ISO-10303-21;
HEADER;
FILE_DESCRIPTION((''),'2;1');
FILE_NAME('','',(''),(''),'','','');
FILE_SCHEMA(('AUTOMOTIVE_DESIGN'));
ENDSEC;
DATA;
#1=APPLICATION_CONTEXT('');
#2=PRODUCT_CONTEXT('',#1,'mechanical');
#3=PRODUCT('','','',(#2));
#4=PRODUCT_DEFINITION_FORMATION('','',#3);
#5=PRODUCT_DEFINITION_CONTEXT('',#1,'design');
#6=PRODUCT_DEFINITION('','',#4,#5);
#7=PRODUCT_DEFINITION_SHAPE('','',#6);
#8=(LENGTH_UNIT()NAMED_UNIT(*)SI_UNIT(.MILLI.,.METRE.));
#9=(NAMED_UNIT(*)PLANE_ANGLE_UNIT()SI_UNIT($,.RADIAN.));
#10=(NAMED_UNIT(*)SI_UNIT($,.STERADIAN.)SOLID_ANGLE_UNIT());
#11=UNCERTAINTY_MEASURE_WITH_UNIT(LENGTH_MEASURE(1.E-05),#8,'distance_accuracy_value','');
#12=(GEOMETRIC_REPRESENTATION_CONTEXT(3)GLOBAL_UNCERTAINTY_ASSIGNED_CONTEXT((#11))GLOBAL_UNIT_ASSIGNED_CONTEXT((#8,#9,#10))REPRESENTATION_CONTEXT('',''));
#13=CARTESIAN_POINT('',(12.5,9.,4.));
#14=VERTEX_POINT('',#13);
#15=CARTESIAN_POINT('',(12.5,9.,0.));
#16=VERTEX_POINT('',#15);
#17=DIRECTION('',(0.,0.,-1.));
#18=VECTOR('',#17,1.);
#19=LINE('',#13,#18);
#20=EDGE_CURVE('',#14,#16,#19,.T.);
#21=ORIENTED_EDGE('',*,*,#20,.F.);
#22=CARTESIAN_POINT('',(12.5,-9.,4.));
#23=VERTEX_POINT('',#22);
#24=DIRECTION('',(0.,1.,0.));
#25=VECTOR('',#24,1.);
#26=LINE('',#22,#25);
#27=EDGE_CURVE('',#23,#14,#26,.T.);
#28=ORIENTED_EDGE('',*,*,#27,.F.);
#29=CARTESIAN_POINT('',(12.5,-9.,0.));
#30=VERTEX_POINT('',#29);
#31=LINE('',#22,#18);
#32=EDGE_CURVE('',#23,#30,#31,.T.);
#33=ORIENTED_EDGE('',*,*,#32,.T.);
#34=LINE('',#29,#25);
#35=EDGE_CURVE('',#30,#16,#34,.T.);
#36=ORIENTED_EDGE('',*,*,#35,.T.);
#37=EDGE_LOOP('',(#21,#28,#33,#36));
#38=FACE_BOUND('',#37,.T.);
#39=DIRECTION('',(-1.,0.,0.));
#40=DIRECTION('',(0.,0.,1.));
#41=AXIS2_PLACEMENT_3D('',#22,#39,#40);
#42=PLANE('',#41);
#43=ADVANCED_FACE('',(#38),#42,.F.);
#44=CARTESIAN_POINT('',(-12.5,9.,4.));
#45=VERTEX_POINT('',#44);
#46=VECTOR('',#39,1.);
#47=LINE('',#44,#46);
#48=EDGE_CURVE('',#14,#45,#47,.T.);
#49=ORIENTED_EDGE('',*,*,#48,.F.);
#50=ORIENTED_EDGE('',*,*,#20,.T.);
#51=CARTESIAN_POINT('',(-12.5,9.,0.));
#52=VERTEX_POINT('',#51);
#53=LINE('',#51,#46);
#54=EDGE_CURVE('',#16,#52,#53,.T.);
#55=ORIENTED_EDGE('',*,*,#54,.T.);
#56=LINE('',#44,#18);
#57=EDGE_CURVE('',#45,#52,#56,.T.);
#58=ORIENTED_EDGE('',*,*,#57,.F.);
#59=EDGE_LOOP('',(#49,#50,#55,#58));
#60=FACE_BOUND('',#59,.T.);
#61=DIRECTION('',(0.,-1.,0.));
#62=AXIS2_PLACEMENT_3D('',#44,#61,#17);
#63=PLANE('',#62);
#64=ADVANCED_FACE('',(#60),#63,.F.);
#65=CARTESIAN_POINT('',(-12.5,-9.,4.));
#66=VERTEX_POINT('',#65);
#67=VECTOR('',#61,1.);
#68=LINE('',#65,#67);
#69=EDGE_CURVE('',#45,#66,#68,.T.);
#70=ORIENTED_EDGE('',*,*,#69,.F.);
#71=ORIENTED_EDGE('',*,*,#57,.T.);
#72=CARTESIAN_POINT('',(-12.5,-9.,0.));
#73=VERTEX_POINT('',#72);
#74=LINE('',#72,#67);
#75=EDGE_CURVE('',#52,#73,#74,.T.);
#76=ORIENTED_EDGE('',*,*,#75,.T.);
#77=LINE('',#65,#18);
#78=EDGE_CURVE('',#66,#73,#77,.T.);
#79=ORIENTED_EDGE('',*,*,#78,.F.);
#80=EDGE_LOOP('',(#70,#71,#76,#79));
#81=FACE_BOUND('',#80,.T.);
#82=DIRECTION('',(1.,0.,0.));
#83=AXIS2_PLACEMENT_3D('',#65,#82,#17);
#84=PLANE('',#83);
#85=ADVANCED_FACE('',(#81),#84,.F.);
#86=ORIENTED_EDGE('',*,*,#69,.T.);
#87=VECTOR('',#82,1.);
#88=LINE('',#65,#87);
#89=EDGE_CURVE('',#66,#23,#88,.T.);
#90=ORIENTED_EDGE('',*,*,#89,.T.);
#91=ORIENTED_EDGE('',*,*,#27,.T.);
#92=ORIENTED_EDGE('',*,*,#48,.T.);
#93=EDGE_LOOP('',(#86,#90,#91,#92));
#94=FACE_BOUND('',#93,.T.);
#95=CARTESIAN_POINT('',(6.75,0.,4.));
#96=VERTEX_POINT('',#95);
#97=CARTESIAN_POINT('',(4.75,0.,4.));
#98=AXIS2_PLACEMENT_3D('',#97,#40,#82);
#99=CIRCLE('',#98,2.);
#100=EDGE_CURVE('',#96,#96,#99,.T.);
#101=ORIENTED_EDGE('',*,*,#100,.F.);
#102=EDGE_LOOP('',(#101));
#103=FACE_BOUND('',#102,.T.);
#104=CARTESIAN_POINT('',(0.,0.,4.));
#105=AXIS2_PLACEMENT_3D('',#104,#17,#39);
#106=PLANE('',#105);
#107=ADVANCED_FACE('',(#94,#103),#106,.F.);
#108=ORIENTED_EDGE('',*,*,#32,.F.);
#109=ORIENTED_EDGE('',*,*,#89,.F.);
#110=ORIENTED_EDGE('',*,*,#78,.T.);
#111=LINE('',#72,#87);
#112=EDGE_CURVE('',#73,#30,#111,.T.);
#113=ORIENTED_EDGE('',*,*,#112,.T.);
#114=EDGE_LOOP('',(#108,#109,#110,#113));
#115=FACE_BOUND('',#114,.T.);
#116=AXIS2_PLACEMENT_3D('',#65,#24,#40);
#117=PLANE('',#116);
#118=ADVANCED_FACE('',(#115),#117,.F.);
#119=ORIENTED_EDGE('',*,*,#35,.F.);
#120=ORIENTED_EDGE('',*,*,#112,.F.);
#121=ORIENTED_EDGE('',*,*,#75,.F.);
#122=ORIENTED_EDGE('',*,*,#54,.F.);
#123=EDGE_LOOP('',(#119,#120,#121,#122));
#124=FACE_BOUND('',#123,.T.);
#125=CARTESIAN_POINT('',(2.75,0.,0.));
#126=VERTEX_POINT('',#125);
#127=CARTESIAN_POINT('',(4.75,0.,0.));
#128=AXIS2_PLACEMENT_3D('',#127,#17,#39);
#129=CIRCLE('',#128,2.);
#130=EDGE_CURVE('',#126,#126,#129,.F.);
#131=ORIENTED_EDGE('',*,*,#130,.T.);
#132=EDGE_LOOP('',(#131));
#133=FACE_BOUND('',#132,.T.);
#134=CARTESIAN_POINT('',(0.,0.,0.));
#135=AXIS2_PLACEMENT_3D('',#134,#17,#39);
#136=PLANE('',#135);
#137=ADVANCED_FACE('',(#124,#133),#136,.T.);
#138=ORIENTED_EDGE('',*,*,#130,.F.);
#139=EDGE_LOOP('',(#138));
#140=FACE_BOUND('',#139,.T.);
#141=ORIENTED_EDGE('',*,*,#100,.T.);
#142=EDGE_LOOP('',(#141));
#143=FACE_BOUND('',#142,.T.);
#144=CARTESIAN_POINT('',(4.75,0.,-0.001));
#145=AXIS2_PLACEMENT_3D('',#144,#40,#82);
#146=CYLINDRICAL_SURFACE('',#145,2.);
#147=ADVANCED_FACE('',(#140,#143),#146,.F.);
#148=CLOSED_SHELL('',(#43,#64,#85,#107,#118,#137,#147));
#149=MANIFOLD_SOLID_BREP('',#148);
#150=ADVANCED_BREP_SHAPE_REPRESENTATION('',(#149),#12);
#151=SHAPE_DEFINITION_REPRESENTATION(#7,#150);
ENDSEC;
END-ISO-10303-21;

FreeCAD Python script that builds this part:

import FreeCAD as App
import Part
import Sketcher


def add_polygon(sketch, points):
    """Adds a closed chain of lines whose ends are joined by coincident constraints."""
    first, n = sketch.GeometryCount, len(points)
    for a, b in zip(points, points[1:] + points[:1]):
        sketch.addGeometry(Part.LineSegment(App.Vector(*a, 0), App.Vector(*b, 0)), False)
    for i in range(n):
        sketch.addConstraint(Sketcher.Constraint("Coincident", first + i, 2, first + (i + 1) % n, 1))

doc = App.newDocument("Part")
body = doc.addObject("PartDesign::Body", "Body")

# Sketch on XY plane
sketch1 = body.newObject("Sketcher::SketchObject", "Sketch")
sketch1.AttachmentSupport = (doc.getObject("XY_Plane"), [""])
sketch1.MapMode = "FlatFace"
add_polygon(sketch1, [(-12, 9), (-12, -9), (12, -9), (12, 9)])  # lines 0-3
sketch1.addConstraint([
    Sketcher.Constraint("Vertical", 0),
    Sketcher.Constraint("Horizontal", 1),
    Sketcher.Constraint("Vertical", 2),
    Sketcher.Constraint("Horizontal", 3),
    Sketcher.Constraint("Symmetric", 0, 2, 2, 2, -1, 1),
    Sketcher.Constraint("DistanceX", 1, 1, 1, 2, 25.0),
    Sketcher.Constraint("DistanceY", 0, 2, 0, 1, 18.0),
])
pad1 = body.newObject("PartDesign::Pad", "Pad")
pad1.Profile = sketch1
pad1.Length = 4

# Sketch on XY plane
sketch2 = body.newObject("Sketcher::SketchObject", "Sketch001")
sketch2.AttachmentSupport = (doc.getObject("XY_Plane"), [""])
sketch2.MapMode = "FlatFace"
sketch2.AttachmentOffset = App.Placement(App.Vector(0, 0, 4), App.Rotation())
sketch2.addGeometry(Part.Circle(App.Vector(4.8, 0, 0), App.Vector(0, 0, 1), 2), False)
sketch2.addConstraint([
    Sketcher.Constraint("PointOnObject", 0, 3, -1),
    Sketcher.Constraint("Diameter", 0, 4.0),
    Sketcher.Constraint("DistanceX", -1, 1, 0, 3, 4.75),
])
pocket1 = body.newObject("PartDesign::Pocket", "Pocket")
pocket1.Profile = sketch2
pocket1.Type = "UpToFirst"

doc.recompute()
